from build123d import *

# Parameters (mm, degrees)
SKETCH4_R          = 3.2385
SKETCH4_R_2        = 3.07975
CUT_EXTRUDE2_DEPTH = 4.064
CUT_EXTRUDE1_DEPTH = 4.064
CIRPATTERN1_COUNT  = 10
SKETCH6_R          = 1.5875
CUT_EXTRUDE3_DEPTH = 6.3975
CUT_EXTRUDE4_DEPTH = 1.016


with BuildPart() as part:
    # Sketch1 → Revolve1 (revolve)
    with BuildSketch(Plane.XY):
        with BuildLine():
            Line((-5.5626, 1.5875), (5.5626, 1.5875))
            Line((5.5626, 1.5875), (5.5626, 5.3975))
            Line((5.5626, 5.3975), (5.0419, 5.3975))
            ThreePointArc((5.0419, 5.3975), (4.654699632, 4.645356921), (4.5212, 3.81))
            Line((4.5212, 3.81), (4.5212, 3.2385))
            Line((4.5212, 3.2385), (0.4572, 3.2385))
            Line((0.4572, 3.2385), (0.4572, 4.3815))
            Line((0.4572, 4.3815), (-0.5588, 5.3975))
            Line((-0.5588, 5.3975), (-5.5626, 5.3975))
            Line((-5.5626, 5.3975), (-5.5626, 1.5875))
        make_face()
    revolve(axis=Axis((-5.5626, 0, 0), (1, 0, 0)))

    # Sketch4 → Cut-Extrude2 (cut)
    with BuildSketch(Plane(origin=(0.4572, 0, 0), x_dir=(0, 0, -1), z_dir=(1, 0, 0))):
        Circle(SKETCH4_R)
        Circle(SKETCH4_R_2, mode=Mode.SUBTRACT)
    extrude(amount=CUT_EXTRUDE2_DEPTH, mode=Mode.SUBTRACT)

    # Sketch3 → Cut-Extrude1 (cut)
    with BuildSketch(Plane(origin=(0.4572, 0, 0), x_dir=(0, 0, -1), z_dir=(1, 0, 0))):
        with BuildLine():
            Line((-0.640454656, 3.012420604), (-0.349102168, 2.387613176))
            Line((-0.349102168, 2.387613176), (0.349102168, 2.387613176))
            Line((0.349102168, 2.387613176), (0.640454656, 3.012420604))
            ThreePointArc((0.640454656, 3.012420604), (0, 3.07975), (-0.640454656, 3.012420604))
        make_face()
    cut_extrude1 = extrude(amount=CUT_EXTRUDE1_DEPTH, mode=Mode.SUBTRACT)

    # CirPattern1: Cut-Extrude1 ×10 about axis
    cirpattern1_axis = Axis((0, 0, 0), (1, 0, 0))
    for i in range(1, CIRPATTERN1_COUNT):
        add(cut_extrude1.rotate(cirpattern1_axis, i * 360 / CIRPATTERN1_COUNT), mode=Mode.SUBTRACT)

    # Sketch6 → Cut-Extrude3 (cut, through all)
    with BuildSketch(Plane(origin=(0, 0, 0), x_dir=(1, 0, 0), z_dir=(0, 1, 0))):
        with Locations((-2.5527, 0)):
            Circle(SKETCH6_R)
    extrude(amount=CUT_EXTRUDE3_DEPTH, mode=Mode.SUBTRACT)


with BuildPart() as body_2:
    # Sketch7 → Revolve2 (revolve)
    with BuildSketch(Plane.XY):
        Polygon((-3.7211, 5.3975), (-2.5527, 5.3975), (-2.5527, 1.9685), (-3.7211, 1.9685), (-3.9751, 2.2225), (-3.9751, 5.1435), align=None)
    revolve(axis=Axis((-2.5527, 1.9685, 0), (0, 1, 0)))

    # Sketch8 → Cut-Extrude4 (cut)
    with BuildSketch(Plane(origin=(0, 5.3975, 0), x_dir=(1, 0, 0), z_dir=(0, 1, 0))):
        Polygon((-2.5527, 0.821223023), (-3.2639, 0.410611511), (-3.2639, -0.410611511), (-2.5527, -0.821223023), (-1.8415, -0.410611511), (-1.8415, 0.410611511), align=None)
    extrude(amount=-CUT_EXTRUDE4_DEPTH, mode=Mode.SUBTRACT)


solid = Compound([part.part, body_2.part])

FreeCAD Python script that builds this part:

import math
import FreeCAD as App
import Part
import Sketcher

V = App.Vector
Q = App.Units.Quantity


def add_polygon(sketch, points):
    """Adds a closed chain of lines whose ends are joined by coincident constraints."""
    first, n = sketch.GeometryCount, len(points)
    for a, b in zip(points, points[1:] + points[:1]):
        sketch.addGeometry(Part.LineSegment(App.Vector(*a, 0), App.Vector(*b, 0)), False)
    for i in range(n):
        sketch.addConstraint(Sketcher.Constraint("Coincident", first + i, 2, first + (i + 1) % n, 1))

doc = App.newDocument("Part")
body = doc.addObject("PartDesign::Body", "Body")

# Sketch on XY plane
sketch1 = body.newObject("Sketcher::SketchObject", "Sketch")
sketch1.AttachmentSupport = (doc.getObject("XY_Plane"), [""])
sketch1.MapMode = "FlatFace"
sketch1.addGeometry([
    Part.LineSegment(V(-5.6, 1.6, 0), V(5.6, 1.6, 0)),  # 0
    Part.LineSegment(V(5.6, 1.6, 0), V(5.6, 5.4, 0)),  # 1
    Part.LineSegment(V(5.6, 5.4, 0), V(5, 5.4, 0)),  # 2
    Part.ArcOfCircle(Part.Circle(V(7.2, 3.8, 0), V(0, 0, 1), 2.7), math.radians(144), math.radians(180)),  # 3
    Part.LineSegment(V(4.5, 3.8, 0), V(4.5, 3.2, 0)),  # 4
    Part.LineSegment(V(4.5, 3.2, 0), V(0.5, 3.2, 0)),  # 5
    Part.LineSegment(V(0.5, 3.2, 0), V(0.5, 4.4, 0)),  # 6
    Part.LineSegment(V(0.5, 4.4, 0), V(-0.6, 5.4, 0)),  # 7
    Part.LineSegment(V(-0.6, 5.4, 0), V(-5.6, 5.4, 0)),  # 8
    Part.LineSegment(V(-5.6, 5.4, 0), V(-5.6, 1.6, 0)),  # 9
], False)
sketch1.addConstraint([
    Sketcher.Constraint("Coincident", 0, 2, 1, 1),
    Sketcher.Constraint("Coincident", 1, 2, 2, 1),
    Sketcher.Constraint("Coincident", 2, 2, 3, 1),
    Sketcher.Constraint("Tangent", 3, 2, 4, 1),
    Sketcher.Constraint("Coincident", 4, 2, 5, 1),
    Sketcher.Constraint("Coincident", 5, 2, 6, 1),
    Sketcher.Constraint("Coincident", 6, 2, 7, 1),
    Sketcher.Constraint("Coincident", 7, 2, 8, 1),
    Sketcher.Constraint("Coincident", 8, 2, 9, 1),
    Sketcher.Constraint("Coincident", 9, 2, 0, 1),
    Sketcher.Constraint("Horizontal", 0),
    Sketcher.Constraint("Vertical", 1),
    Sketcher.Constraint("Horizontal", 2),
    Sketcher.Constraint("Vertical", 4),
    Sketcher.Constraint("Horizontal", 5),
    Sketcher.Constraint("Vertical", 6),
    Sketcher.Constraint("Horizontal", 8),
    Sketcher.Constraint("Vertical", 9),
    Sketcher.Constraint("Symmetric", 1, 2, 8, 2, -2),
    Sketcher.Constraint("Angle", 7, Q("135 deg")),
    Sketcher.Constraint("DistanceX", 5, 2, 5, 1, Q("0.16 in")),
    Sketcher.Constraint("DistanceY", 1, 1, 1, 2, Q("0.15 in")),
    Sketcher.Constraint("DistanceX", 7, 2, 3, 2, Q("0.2 in")),
    Sketcher.Constraint("DistanceX", 0, 1, 0, 2, Q("0.438 in")),
    Sketcher.Constraint("DistanceX", 8, 2, 8, 1, Q("0.197 in")),
    Sketcher.Constraint("DistanceY", 6, 1, 6, 2, Q("0.045 in")),
    Sketcher.Constraint("DistanceY", -1, 1, 3, 3, Q("0.15 in")),
    Sketcher.Constraint("DistanceX", 2, 2, 2, 1, Q("0.0205 in")),
    Sketcher.Constraint("DistanceY", 4, 2, 4, 1, Q("0.0225 in")),
])
revolution = body.newObject("PartDesign::Revolution", "Revolution")
revolution.Profile = sketch1
revolution.ReferenceAxis = (sketch1, ["H_Axis"])
revolution.Angle = 360

# Sketch on YZ plane
sketch2 = body.newObject("Sketcher::SketchObject", "Sketch001")
sketch2.AttachmentSupport = (doc.getObject("YZ_Plane"), [""])
sketch2.MapMode = "FlatFace"
sketch2.AttachmentOffset = App.Placement(V(0, 0, 0.018 * 25.4), App.Rotation())
sketch2.addGeometry([
    Part.Circle(V(0, 0, 0), V(0, 0, 1), 3.2),
    Part.Circle(V(0, 0, 0), V(0, 0, 1), 3.1),
], False)
sketch2.addConstraint([
    Sketcher.Constraint("Coincident", 0, 3, -1, 1),
    Sketcher.Constraint("Coincident", 1, 3, -1, 1),
    Sketcher.Constraint("Diameter", 0, Q("0.255 in")),
    Sketcher.Constraint("Diameter", 1, Q("0.2425 in")),
])
pocket1 = body.newObject("PartDesign::Pocket", "Pocket")
pocket1.Profile = sketch2
pocket1.Length = Q("0.16 in")
pocket1.Reversed = True

# Sketch on YZ plane
sketch3 = body.newObject("Sketcher::SketchObject", "Sketch002")
sketch3.AttachmentSupport = (doc.getObject("YZ_Plane"), [""])
sketch3.MapMode = "FlatFace"
sketch3.AttachmentOffset = App.Placement(V(0, 0, 0.018 * 25.4), App.Rotation())
sketch3.addGeometry([
    Part.LineSegment(V(3, 0.6, 0), V(2.4, 0.3, 0)),
    Part.LineSegment(V(2.4, 0.3, 0), V(2.4, -0.3, 0)),
    Part.LineSegment(V(2.4, -0.3, 0), V(3, -0.6, 0)),
    Part.ArcOfCircle(Part.Circle(V(0, 0, 0), V(0, 0, 1), 3.1), math.radians(-12), math.radians(12)),
], False)
sketch3.addConstraint([
    Sketcher.Constraint("Coincident", 0, 2, 1, 1),
    Sketcher.Constraint("Coincident", 1, 2, 2, 1),
    Sketcher.Constraint("Coincident", 2, 2, 3, 1),
    Sketcher.Constraint("Coincident", 3, 2, 0, 1),
    Sketcher.Constraint("Vertical", 1),
    Sketcher.Constraint("Coincident", 3, 3, -1, 1),
    Sketcher.Constraint("Vertical", 2, 2, 3, 2),
    Sketcher.Constraint("Equal", 0, 2),
    Sketcher.Constraint("Angle", 0, Q("-155 deg")),
    Sketcher.Constraint("Radius", 3, 3.07975),
    Sketcher.Constraint("Distance", 0, 0.689399),
    Sketcher.Constraint("DistanceY", 1, 2, 1, 1, 0.698204),
])
pocket2 = body.newObject("PartDesign::Pocket", "Pocket001")
pocket2.Profile = sketch3
pocket2.Length = Q("0.16 in")
pocket2.Reversed = True
doc.recompute()

polarpattern = body.newObject("PartDesign::PolarPattern", "PolarPattern")
polarpattern.Originals = [pocket2]
polarpattern.Axis = (doc.getObject("X_Axis"), [""])
polarpattern.Angle = 360
polarpattern.Occurrences = 10
body.Tip = polarpattern

# Sketch on XZ plane
sketch4 = body.newObject("Sketcher::SketchObject", "Sketch003")
sketch4.AttachmentSupport = (doc.getObject("XZ_Plane"), [""])
sketch4.MapMode = "FlatFace"
sketch4.addGeometry(Part.Circle(V(-2.6, 0, 0), V(0, 0, 1), 1.6), False)
sketch4.addConstraint([
    Sketcher.Constraint("PointOnObject", 0, 3, -1),
    Sketcher.Constraint("Diameter", 0, Q("0.125 in")),
    Sketcher.Constraint("DistanceX", 0, 3, -1, 1, Q("0.1005 in")),
])
pocket3 = body.newObject("PartDesign::Pocket", "Pocket002")
pocket3.Profile = sketch4
pocket3.Type = "ThroughAll"
body2 = doc.addObject("PartDesign::Body", "Body001")

# Sketch on XY plane
sketch5 = body2.newObject("Sketcher::SketchObject", "Sketch004")
sketch5.AttachmentSupport = (doc.getObject("XY_Plane001"), [""])
sketch5.MapMode = "FlatFace"
add_polygon(sketch5, [(-2.55, 5.4), (-3.72, 5.4), (-3.98, 5.14), (-3.98, 2.22), (-3.72, 1.97), (-2.55, 1.97)])  # lines 0-5
sketch5.addGeometry(Part.LineSegment(V(-2.55, 1.97, 0), V(-2.55, 5.4, 0)), True)  # axis
sketch5.addConstraint([
    Sketcher.Constraint("Horizontal", 0),
    Sketcher.Constraint("Vertical", 2),
    Sketcher.Constraint("Horizontal", 4),
    Sketcher.Constraint("Vertical", 5),
    Sketcher.Constraint("Vertical", 6),
    Sketcher.Constraint("Coincident", 6, 1, 4, 2),
    Sketcher.Constraint("Perpendicular", 1, 3),
    Sketcher.Constraint("Horizontal", 0, 2, 6, 2),
    Sketcher.Constraint("Vertical", 0, 2, 3, 2),
    Sketcher.Constraint("Equal", 1, 3),
    Sketcher.Constraint("DistanceX", 0, 2, 0, 1, Q("0.046 in")),
    Sketcher.Constraint("DistanceY", 2, 2, 2, 1, Q("0.115 in")),
    Sketcher.Constraint("DistanceY", 5, 1, 5, 2, Q("0.135 in")),
    Sketcher.Constraint("DistanceX", 0, 2, -1, 1, Q("0.1465 in")),
    Sketcher.Constraint("DistanceY", -1, 1, 0, 2, Q("0.2125 in")),
])
revolution2 = body2.newObject("PartDesign::Revolution", "Revolution001")
revolution2.Profile = sketch5
revolution2.ReferenceAxis = (sketch5, ["Axis0"])
revolution2.Angle = 360

# Sketch on XZ plane
sketch6 = body2.newObject("Sketcher::SketchObject", "Sketch005")
sketch6.AttachmentSupport = (doc.getObject("XZ_Plane001"), [""])
sketch6.MapMode = "FlatFace"
sketch6.AttachmentOffset = App.Placement(V(0, 0, -0.2125 * 25.4), App.Rotation())
add_polygon(sketch6, [(-2.6, -0.8), (-3.3, -0.4), (-3.3, 0.4), (-2.6, 0.8), (-1.8, 0.4), (-1.8, -0.4)])  # lines 0-5
sketch6.addConstraint([
    Sketcher.Constraint("Vertical", 1),
    Sketcher.Constraint("Vertical", 4),
    Sketcher.Constraint("Symmetric", 2, 2, 5, 2, -1),
    Sketcher.Constraint("Parallel", 0, 3),
    Sketcher.Constraint("Parallel", 2, 5),
    Sketcher.Constraint("Horizontal", 1, 2, 3, 2),
    Sketcher.Constraint("Horizontal", 0, 2, 4, 2),
    Sketcher.Constraint("Angle", 0, Q("150 deg")),
    Sketcher.Constraint("DistanceX", 1, 2, 2, 2, Q("0.028 in")),
    Sketcher.Constraint("DistanceX", 0, 2, -1, 1, Q("0.1285 in")),
    Sketcher.Constraint("DistanceY", 1, 1, 1, 2, 0.821223),
])
pocket4 = body2.newObject("PartDesign::Pocket", "Pocket003")
pocket4.Profile = sketch6
pocket4.Length = Q("0.04 in")
pocket4.Reversed = True

doc.recompute()
